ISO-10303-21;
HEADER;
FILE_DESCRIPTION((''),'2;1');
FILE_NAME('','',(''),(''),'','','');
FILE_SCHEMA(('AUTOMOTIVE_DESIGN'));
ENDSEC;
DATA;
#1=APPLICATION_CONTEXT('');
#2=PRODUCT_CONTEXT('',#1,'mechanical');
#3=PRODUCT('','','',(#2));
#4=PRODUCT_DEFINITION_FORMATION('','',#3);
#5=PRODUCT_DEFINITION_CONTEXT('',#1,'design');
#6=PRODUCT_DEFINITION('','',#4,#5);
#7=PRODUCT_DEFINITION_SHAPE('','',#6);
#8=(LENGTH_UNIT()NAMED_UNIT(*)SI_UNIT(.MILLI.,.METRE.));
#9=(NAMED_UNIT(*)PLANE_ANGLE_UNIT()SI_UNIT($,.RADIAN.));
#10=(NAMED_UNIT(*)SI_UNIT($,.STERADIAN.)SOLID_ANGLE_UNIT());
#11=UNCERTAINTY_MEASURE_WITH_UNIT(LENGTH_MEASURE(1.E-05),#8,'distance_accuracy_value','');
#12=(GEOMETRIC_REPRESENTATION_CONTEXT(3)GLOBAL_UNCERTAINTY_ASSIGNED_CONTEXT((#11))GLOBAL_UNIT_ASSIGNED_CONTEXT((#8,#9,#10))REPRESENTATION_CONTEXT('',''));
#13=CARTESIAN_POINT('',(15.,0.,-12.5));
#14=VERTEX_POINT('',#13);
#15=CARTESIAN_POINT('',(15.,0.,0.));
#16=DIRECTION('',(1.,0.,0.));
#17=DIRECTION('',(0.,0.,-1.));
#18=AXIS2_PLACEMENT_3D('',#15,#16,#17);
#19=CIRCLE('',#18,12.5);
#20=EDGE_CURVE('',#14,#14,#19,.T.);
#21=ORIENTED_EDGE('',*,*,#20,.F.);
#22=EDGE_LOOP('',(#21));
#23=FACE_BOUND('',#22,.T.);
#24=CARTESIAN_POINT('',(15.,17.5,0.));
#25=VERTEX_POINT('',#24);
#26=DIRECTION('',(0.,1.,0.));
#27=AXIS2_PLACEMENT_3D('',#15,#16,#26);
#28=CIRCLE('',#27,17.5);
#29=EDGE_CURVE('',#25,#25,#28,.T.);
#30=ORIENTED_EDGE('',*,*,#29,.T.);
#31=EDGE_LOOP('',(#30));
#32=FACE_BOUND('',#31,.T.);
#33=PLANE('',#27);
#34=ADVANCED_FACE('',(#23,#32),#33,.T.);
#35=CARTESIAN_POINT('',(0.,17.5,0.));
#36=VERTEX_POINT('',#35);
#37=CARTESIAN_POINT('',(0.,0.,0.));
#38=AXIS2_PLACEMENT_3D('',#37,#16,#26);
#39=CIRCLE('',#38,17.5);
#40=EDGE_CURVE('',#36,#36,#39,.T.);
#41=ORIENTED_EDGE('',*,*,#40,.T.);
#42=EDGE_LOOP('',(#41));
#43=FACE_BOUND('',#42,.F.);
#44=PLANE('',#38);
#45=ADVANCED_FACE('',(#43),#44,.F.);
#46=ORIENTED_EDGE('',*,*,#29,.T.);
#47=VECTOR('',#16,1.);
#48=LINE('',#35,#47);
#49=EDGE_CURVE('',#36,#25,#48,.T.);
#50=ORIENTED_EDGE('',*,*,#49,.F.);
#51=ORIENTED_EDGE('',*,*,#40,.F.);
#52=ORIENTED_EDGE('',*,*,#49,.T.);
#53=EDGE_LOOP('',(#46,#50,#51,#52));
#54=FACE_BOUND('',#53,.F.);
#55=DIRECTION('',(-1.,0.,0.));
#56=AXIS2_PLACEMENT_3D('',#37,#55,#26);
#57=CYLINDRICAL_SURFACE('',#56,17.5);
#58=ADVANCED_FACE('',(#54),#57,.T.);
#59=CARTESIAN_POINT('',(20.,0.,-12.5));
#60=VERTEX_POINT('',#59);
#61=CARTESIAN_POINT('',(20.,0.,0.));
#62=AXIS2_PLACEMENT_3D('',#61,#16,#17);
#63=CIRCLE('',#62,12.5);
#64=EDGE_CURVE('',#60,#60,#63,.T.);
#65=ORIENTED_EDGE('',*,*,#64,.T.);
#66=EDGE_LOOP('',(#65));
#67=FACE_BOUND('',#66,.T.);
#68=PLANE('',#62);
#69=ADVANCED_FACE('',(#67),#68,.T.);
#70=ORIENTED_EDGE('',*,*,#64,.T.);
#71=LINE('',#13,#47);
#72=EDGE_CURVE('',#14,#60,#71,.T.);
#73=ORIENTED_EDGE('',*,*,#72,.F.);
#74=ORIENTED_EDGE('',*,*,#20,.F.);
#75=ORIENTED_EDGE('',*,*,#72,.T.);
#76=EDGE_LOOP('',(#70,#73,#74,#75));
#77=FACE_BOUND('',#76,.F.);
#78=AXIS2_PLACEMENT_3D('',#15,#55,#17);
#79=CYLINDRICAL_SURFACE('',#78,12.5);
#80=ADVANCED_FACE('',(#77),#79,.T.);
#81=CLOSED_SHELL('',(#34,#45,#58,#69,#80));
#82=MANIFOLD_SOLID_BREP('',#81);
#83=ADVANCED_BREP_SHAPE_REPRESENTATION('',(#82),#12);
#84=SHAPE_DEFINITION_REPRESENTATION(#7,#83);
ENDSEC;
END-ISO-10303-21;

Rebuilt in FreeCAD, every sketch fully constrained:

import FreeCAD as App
import Part
import Sketcher
from FreeCAD import Vector

doc = App.newDocument("Part")
body = doc.addObject("PartDesign::Body", "Body")

# Sketch on YZ plane
sketch1 = body.newObject("Sketcher::SketchObject", "Sketch")
sketch1.AttachmentSupport = (doc.getObject("YZ_Plane"), [""])
sketch1.MapMode = "FlatFace"
sketch1.addGeometry(Part.Circle(Vector(0, 0, 0), Vector(0, 0, 1), 17.5), False)
sketch1.addConstraint(Sketcher.Constraint("Coincident", 0, 3, -1, 1))
sketch1.addConstraint(Sketcher.Constraint("Diameter", 0, 35.0))
pad1 = body.newObject("PartDesign::Pad", "Pad")
pad1.Profile = sketch1
pad1.Length = 15

# Sketch on YZ plane
sketch2 = body.newObject("Sketcher::SketchObject", "Sketch001")
sketch2.AttachmentSupport = (doc.getObject("YZ_Plane"), [""])
sketch2.MapMode = "FlatFace"
sketch2.AttachmentOffset = App.Placement(Vector(0, 0, 15), App.Rotation())
sketch2.addGeometry(Part.Circle(Vector(0, 0, 0), Vector(0, 0, 1), 12.5), False)
sketch2.addConstraint(Sketcher.Constraint("Coincident", 0, 3, -1, 1))
sketch2.addConstraint(Sketcher.Constraint("Diameter", 0, 25.0))
pad2 = body.newObject("PartDesign::Pad", "Pad001")
pad2.Profile = sketch2
pad2.Length = 5

doc.recompute()
